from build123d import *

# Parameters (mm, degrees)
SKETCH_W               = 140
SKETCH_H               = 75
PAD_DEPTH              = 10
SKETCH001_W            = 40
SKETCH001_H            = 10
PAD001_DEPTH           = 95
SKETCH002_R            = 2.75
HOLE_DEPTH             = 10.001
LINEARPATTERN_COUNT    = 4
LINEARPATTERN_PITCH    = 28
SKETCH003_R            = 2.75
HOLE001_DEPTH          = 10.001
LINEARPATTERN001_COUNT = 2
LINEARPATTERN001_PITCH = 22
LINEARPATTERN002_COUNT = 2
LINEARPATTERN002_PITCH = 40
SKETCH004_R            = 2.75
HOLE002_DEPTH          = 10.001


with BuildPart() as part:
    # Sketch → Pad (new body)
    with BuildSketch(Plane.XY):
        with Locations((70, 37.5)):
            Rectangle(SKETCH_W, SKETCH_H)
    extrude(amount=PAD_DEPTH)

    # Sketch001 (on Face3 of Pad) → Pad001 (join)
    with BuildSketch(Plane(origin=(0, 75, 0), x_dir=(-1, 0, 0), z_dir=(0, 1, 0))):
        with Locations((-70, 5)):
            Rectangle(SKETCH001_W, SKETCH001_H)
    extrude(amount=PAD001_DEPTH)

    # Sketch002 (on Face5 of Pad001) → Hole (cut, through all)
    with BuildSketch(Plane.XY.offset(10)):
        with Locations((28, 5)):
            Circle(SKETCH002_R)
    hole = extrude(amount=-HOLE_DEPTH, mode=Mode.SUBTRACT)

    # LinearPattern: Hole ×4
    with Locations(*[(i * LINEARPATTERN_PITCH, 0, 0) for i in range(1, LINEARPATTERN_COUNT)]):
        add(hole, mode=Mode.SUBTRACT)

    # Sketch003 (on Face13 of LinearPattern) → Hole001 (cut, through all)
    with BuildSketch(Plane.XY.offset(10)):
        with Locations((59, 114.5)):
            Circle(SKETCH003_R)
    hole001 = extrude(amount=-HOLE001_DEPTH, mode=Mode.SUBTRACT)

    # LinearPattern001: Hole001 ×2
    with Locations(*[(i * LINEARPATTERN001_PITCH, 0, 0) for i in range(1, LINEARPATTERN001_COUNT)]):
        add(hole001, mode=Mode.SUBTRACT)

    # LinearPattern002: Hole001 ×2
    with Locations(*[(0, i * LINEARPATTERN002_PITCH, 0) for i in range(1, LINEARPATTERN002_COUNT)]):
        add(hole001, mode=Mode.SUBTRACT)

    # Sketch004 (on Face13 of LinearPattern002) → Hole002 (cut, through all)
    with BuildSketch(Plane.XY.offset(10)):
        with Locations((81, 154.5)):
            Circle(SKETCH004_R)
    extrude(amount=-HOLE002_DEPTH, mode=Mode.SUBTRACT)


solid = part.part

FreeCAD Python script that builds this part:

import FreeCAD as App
import Part
import Sketcher

V = App.Vector
Q = App.Units.Quantity

doc = App.newDocument("Part")
body = doc.addObject("PartDesign::Body", "Body")

# Sketch on XY plane
sketch1 = body.newObject("Sketcher::SketchObject", "Sketch")
sketch1.AttachmentSupport = (doc.getObject("XY_Plane"), [""])
sketch1.MapMode = "FlatFace"
sketch1.addGeometry(Part.LineSegment(V(0, 75, 0), V(0, 0, 0)), False)
sketch1.addGeometry(Part.LineSegment(V(0, 0, 0), V(140, 0, 0)), False)
sketch1.addGeometry(Part.LineSegment(V(140, 0, 0), V(140, 75, 0)), False)
sketch1.addGeometry(Part.LineSegment(V(140, 75, 0), V(0, 75, 0)), False)
sketch1.addConstraint(Sketcher.Constraint("Coincident", 0, 2, 1, 1))
sketch1.addConstraint(Sketcher.Constraint("Coincident", 1, 2, 2, 1))
sketch1.addConstraint(Sketcher.Constraint("Coincident", 2, 2, 3, 1))
sketch1.addConstraint(Sketcher.Constraint("Coincident", 3, 2, 0, 1))
sketch1.addConstraint(Sketcher.Constraint("Vertical", 0))
sketch1.addConstraint(Sketcher.Constraint("Horizontal", 1))
sketch1.addConstraint(Sketcher.Constraint("Vertical", 2))
sketch1.addConstraint(Sketcher.Constraint("Horizontal", 3))
sketch1.addConstraint(Sketcher.Constraint("Coincident", 0, 2, -1, 1))
sketch1.addConstraint(Sketcher.Constraint("DistanceX", 1, 1, 1, 2, Q("140 mm")))
sketch1.addConstraint(Sketcher.Constraint("DistanceY", 0, 2, 0, 1, Q("75 mm")))
pad1 = body.newObject("PartDesign::Pad", "Pad")
pad1.Profile = sketch1
pad1.Length = 10

# Sketch on XZ plane
sketch2 = body.newObject("Sketcher::SketchObject", "Sketch001")
sketch2.AttachmentSupport = (doc.getObject("XZ_Plane"), [""])
sketch2.MapMode = "FlatFace"
sketch2.AttachmentOffset = App.Placement(V(0, 0, -75), App.Rotation())
sketch2.addGeometry(Part.LineSegment(V(90, 10, 0), V(90, 0, 0)), False)
sketch2.addGeometry(Part.LineSegment(V(90, 0, 0), V(50, 0, 0)), False)
sketch2.addGeometry(Part.LineSegment(V(50, 0, 0), V(50, 10, 0)), False)
sketch2.addGeometry(Part.LineSegment(V(50, 10, 0), V(90, 10, 0)), False)
sketch2.addConstraint(Sketcher.Constraint("Coincident", 0, 2, 1, 1))
sketch2.addConstraint(Sketcher.Constraint("Coincident", 1, 2, 2, 1))
sketch2.addConstraint(Sketcher.Constraint("Coincident", 2, 2, 3, 1))
sketch2.addConstraint(Sketcher.Constraint("Coincident", 3, 2, 0, 1))
sketch2.addConstraint(Sketcher.Constraint("Vertical", 0))
sketch2.addConstraint(Sketcher.Constraint("Horizontal", 1))
sketch2.addConstraint(Sketcher.Constraint("Vertical", 2))
sketch2.addConstraint(Sketcher.Constraint("Horizontal", 3))
sketch2.addConstraint(Sketcher.Constraint("PointOnObject", 0, 2, -1))
sketch2.addConstraint(Sketcher.Constraint("DistanceX", 1, 2, 1, 1, Q("40 mm")))
sketch2.addConstraint(Sketcher.Constraint("DistanceY", 0, 2, 0, 1, Q("10 mm")))
sketch2.addConstraint(Sketcher.Constraint("DistanceX", -1, 1, 0, 2, Q("90 mm")))
pad2 = body.newObject("PartDesign::Pad", "Pad001")
pad2.Profile = sketch2
pad2.Length = 95
pad2.Reversed = True

# Sketch on XY plane
sketch3 = body.newObject("Sketcher::SketchObject", "Sketch002")
sketch3.AttachmentSupport = (doc.getObject("XY_Plane"), [""])
sketch3.MapMode = "FlatFace"
sketch3.AttachmentOffset = App.Placement(V(0, 0, 10), App.Rotation())
sketch3.addGeometry(Part.Circle(V(28, 5, 0), V(0, 0, 1), 2.8), False)
sketch3.addConstraint(Sketcher.Constraint("Diameter", 0, Q("5.5 mm")))
sketch3.addConstraint(Sketcher.Constraint("DistanceX", -1, 1, 0, 3, Q("28 mm")))
sketch3.addConstraint(Sketcher.Constraint("DistanceY", -1, 1, 0, 3, Q("5 mm")))
pocket1 = body.newObject("PartDesign::Pocket", "Pocket")
pocket1.Profile = sketch3
pocket1.Type = "ThroughAll"
doc.recompute()

linearpattern = body.newObject("PartDesign::LinearPattern", "LinearPattern")
linearpattern.Originals = [pocket1]
linearpattern.Direction = (doc.getObject("X_Axis"), [""])
linearpattern.Mode = "offset"
linearpattern.Offset = 28
linearpattern.Occurrences = 4
body.Tip = linearpattern

# Sketch on XY plane
sketch4 = body.newObject("Sketcher::SketchObject", "Sketch003")
sketch4.AttachmentSupport = (doc.getObject("XY_Plane"), [""])
sketch4.MapMode = "FlatFace"
sketch4.AttachmentOffset = App.Placement(V(0, 0, 10), App.Rotation())
sketch4.addGeometry(Part.Circle(V(59, 114.5, 0), V(0, 0, 1), 2.8), False)
sketch4.addConstraint(Sketcher.Constraint("Diameter", 0, Q("5.5 mm")))
sketch4.addConstraint(Sketcher.Constraint("DistanceX", -1, 1, 0, 3, Q("59 mm")))
sketch4.addConstraint(Sketcher.Constraint("DistanceY", -1, 1, 0, 3, Q("114.5 mm")))
pocket2 = body.newObject("PartDesign::Pocket", "Pocket001")
pocket2.Profile = sketch4
pocket2.Type = "ThroughAll"
doc.recompute()

linearpattern2 = body.newObject("PartDesign::LinearPattern", "LinearPattern001")
linearpattern2.Originals = [pocket2]
linearpattern2.Direction = (doc.getObject("X_Axis"), [""])
linearpattern2.Mode = "offset"
linearpattern2.Offset = 22
linearpattern2.Occurrences = 2
body.Tip = linearpattern2
doc.recompute()

linearpattern3 = body.newObject("PartDesign::LinearPattern", "LinearPattern002")
linearpattern3.Originals = [pocket2]
linearpattern3.Direction = (doc.getObject("Y_Axis"), [""])
linearpattern3.Mode = "offset"
linearpattern3.Offset = 40
linearpattern3.Occurrences = 2
body.Tip = linearpattern3

# Sketch on XY plane
sketch5 = body.newObject("Sketcher::SketchObject", "Sketch004")
sketch5.AttachmentSupport = (doc.getObject("XY_Plane"), [""])
sketch5.MapMode = "FlatFace"
sketch5.AttachmentOffset = App.Placement(V(0, 0, 10), App.Rotation())
sketch5.addGeometry(Part.Circle(V(81, 154.5, 0), V(0, 0, 1), 2.8), False)
sketch5.addConstraint(Sketcher.Constraint("Diameter", 0, Q("5.5 mm")))
sketch5.addConstraint(Sketcher.Constraint("DistanceX", -1, 1, 0, 3, Q("81 mm")))
sketch5.addConstraint(Sketcher.Constraint("DistanceY", -1, 1, 0, 3, Q("154.5 mm")))
pocket3 = body.newObject("PartDesign::Pocket", "Pocket002")
pocket3.Profile = sketch5
pocket3.Type = "ThroughAll"

doc.recompute()
